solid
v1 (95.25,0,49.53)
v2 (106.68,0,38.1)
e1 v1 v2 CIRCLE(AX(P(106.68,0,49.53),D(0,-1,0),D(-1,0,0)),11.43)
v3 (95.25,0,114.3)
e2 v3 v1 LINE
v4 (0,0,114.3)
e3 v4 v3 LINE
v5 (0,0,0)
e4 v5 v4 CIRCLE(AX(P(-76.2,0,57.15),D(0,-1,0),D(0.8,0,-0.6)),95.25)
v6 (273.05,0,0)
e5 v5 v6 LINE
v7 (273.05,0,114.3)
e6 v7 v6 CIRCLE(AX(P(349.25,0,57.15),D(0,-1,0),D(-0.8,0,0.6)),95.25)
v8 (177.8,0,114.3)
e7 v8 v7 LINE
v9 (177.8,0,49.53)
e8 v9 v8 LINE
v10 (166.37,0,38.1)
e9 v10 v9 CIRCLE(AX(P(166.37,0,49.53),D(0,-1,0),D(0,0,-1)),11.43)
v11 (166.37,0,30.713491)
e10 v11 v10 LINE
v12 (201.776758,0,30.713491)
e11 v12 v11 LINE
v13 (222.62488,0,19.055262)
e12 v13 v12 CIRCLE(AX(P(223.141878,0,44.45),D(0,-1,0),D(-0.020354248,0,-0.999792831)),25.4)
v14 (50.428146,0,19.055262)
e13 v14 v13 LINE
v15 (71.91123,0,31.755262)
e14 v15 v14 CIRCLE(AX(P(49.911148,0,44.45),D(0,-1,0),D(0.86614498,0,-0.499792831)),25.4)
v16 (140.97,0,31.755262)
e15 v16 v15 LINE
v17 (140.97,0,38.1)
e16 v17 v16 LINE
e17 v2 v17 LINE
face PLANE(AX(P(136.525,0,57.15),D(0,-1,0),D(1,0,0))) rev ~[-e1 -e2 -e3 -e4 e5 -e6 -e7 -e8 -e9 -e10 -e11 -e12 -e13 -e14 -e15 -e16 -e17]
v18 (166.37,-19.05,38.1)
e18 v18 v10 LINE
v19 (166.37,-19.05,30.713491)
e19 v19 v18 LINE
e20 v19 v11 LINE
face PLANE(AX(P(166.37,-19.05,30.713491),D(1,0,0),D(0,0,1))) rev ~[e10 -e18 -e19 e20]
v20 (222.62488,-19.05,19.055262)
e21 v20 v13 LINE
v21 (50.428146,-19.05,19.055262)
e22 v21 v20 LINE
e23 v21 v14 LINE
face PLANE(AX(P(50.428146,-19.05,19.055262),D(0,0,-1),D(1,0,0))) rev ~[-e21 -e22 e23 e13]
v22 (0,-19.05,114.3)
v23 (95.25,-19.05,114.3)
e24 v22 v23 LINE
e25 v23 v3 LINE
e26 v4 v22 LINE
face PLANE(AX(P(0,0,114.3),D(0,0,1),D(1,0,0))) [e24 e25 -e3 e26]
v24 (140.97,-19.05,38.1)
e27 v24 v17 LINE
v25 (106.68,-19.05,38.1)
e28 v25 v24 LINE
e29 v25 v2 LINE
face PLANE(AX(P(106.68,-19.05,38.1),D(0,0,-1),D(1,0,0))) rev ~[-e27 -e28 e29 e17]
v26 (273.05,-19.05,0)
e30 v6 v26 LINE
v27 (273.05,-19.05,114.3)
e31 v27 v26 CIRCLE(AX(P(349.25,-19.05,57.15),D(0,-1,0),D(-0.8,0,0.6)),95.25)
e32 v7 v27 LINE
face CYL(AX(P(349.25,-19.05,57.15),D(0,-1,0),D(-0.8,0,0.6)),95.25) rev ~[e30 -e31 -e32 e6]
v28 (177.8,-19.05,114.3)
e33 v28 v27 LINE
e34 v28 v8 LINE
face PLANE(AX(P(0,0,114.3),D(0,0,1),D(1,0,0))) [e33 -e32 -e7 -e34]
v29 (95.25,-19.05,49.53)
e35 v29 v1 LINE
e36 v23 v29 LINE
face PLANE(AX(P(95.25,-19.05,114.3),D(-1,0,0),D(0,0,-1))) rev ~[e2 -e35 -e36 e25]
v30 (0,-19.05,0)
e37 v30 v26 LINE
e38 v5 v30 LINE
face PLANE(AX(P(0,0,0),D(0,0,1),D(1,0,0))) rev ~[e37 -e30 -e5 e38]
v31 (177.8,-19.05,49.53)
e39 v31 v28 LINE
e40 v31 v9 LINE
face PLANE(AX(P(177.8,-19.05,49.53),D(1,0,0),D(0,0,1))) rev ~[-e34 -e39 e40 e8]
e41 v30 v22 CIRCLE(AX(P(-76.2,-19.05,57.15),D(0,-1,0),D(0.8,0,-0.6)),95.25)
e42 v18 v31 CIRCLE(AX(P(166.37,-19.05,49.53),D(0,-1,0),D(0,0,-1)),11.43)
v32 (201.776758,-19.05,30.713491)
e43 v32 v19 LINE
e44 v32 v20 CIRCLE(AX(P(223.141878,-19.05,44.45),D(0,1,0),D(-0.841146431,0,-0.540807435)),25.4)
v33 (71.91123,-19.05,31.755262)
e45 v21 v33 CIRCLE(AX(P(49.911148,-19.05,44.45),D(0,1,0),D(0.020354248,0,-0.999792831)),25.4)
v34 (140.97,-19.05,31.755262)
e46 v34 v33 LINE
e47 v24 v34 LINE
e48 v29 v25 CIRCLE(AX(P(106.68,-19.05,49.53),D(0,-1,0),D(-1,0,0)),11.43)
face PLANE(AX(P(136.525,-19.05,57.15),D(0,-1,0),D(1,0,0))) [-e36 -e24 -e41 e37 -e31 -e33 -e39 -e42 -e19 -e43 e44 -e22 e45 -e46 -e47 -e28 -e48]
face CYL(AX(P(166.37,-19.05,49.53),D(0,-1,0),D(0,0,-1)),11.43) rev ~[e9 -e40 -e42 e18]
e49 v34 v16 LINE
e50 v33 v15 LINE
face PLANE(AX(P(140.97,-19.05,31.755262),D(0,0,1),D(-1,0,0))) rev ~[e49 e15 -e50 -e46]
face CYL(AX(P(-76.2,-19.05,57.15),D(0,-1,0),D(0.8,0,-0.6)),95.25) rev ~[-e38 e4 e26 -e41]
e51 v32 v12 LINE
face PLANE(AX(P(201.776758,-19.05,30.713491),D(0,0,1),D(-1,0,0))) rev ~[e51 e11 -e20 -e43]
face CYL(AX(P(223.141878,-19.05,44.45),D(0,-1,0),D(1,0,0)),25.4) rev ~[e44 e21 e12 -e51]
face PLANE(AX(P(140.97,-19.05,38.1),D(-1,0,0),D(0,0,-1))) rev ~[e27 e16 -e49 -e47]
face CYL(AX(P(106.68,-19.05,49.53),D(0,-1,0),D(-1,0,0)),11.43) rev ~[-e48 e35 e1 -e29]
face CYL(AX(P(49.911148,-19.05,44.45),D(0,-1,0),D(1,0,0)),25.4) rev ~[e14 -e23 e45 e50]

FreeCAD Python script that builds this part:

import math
import FreeCAD as App
import Part
import Sketcher

V = App.Vector
Q = App.Units.Quantity


def add_polygon(sketch, points):
    """Adds a closed chain of lines whose ends are joined by coincident constraints."""
    first, n = sketch.GeometryCount, len(points)
    for a, b in zip(points, points[1:] + points[:1]):
        sketch.addGeometry(Part.LineSegment(App.Vector(*a, 0), App.Vector(*b, 0)), False)
    for i in range(n):
        sketch.addConstraint(Sketcher.Constraint("Coincident", first + i, 2, first + (i + 1) % n, 1))

doc = App.newDocument("Part")
body = doc.addObject("PartDesign::Body", "Body")

sketch1 = body.newObject("Sketcher::SketchObject", "Sketch")
sketch1.AttachmentSupport = (doc.getObject("XZ_Plane"), [""])
sketch1.MapMode = "FlatFace"
add_polygon(sketch1, [(0, 114), (0, 0), (273, 0), (273, 114)])
sketch1.addConstraint(Sketcher.Constraint("Vertical", 0))
sketch1.addConstraint(Sketcher.Constraint("Horizontal", 1))
sketch1.addConstraint(Sketcher.Constraint("Vertical", 2))
sketch1.addConstraint(Sketcher.Constraint("Horizontal", 3))
sketch1.addConstraint(Sketcher.Constraint("Coincident", 0, 2, -1, 1))
sketch1.addConstraint(Sketcher.Constraint("DistanceY", 0, 2, 0, 1, Q("4.5 in")))
sketch1.addConstraint(Sketcher.Constraint("DistanceX", 1, 1, 1, 2, Q("10.75 in")))
pad1 = body.newObject("PartDesign::Pad", "Pad")
pad1.Profile = sketch1
pad1.Length = Q("0.75 in")

sketch2 = body.newObject("Sketcher::SketchObject", "Sketch001")
sketch2.AttachmentSupport = (doc.getObject("XZ_Plane"), [""])
sketch2.MapMode = "FlatFace"
sketch2.AttachmentOffset = App.Placement(V(0, 0, 0.75 * 25.4), App.Rotation())
sketch2.addGeometry(Part.LineSegment(V(0, 114, 0), V(0, 0, 0)), False)
sketch2.addGeometry(Part.ArcOfCircle(Part.Circle(V(-76, 57, 0), V(0, 0, 1), 95), math.radians(-37), math.radians(37)), False)
sketch2.addGeometry(Part.ArcOfCircle(Part.Circle(V(349, 57, 0), V(0, 0, 1), 95), math.radians(143), math.radians(217)), False)
sketch2.addGeometry(Part.LineSegment(V(273, 0, 0), V(273, 114, 0)), False)
sketch2.addConstraint(Sketcher.Constraint("Coincident", 0, 1, 1, 2))
sketch2.addConstraint(Sketcher.Constraint("Coincident", 1, 1, 0, 2))
sketch2.addConstraint(Sketcher.Constraint("Coincident", 2, 1, 3, 2))
sketch2.addConstraint(Sketcher.Constraint("Coincident", 3, 1, 2, 2))
sketch2.addConstraint(Sketcher.Constraint("Vertical", 0))
sketch2.addConstraint(Sketcher.Constraint("Vertical", 3))
sketch2.addConstraint(Sketcher.Constraint("Coincident", 1, 1, -1, 1))
sketch2.addConstraint(Sketcher.Constraint("Equal", 1, 2))
sketch2.addConstraint(Sketcher.Constraint("PointOnObject", 3, 1, -1))
sketch2.addConstraint(Sketcher.Constraint("Horizontal", 1, 3, 2, 3))
sketch2.addConstraint(Sketcher.Constraint("Radius", 1, Q("3.75 in")))
sketch2.addConstraint(Sketcher.Constraint("DistanceY", 0, 2, 0, 1, Q("4.5 in")))
sketch2.addConstraint(Sketcher.Constraint("DistanceX", -1, 1, 2, 3, Q("13.75 in")))
pocket1 = body.newObject("PartDesign::Pocket", "Pocket")
pocket1.Profile = sketch2
pocket1.Length = Q("1 in")

sketch3 = body.newObject("Sketcher::SketchObject", "Sketch002")
sketch3.AttachmentSupport = (doc.getObject("XZ_Plane"), [""])
sketch3.MapMode = "FlatFace"
sketch3.AttachmentOffset = App.Placement(V(0, 0, 0.75 * 25.4), App.Rotation())
sketch3.addGeometry(Part.LineSegment(V(178, 114, 0), V(95, 114, 0)), False)
sketch3.addGeometry(Part.LineSegment(V(95, 114, 0), V(95, 50, 0)), False)
sketch3.addGeometry(Part.ArcOfCircle(Part.Circle(V(107, 50, 0), V(0, 0, 1), 11), math.radians(180), math.radians(270)), False)
sketch3.addGeometry(Part.LineSegment(V(107, 38, 0), V(166, 38, 0)), False)
sketch3.addGeometry(Part.ArcOfCircle(Part.Circle(V(166, 50, 0), V(0, 0, 1), 11), math.radians(-90), math.radians(0)), False)
sketch3.addGeometry(Part.LineSegment(V(178, 50, 0), V(178, 114, 0)), False)
sketch3.addGeometry(Part.Circle(V(50, 44, 0), V(0, 0, 1), 25), False)
sketch3.addGeometry(Part.Circle(V(223, 44, 0), V(0, 0, 1), 25), False)
sketch3.addConstraint(Sketcher.Constraint("Coincident", 0, 2, 1, 1))
sketch3.addConstraint(Sketcher.Constraint("Tangent", 1, 2, 2, 1))
sketch3.addConstraint(Sketcher.Constraint("Tangent", 2, 2, 3, 1))
sketch3.addConstraint(Sketcher.Constraint("Tangent", 3, 2, 4, 1))
sketch3.addConstraint(Sketcher.Constraint("Tangent", 4, 2, 5, 1))
sketch3.addConstraint(Sketcher.Constraint("Coincident", 5, 2, 0, 1))
sketch3.addConstraint(Sketcher.Constraint("Horizontal", 0))
sketch3.addConstraint(Sketcher.Constraint("Vertical", 1))
sketch3.addConstraint(Sketcher.Constraint("Horizontal", 3))
sketch3.addConstraint(Sketcher.Constraint("Vertical", 5))
sketch3.addConstraint(Sketcher.Constraint("Equal", 2, 4))
sketch3.addConstraint(Sketcher.Constraint("Equal", 6, 7))
sketch3.addConstraint(Sketcher.Constraint("Horizontal", 6, 3, 7, 3))
sketch3.addConstraint(Sketcher.Constraint("Diameter", 6, Q("2 in")))
sketch3.addConstraint(Sketcher.Constraint("Radius", 2, Q("0.45 in")))
sketch3.addConstraint(Sketcher.Constraint("DistanceX", -1, 1, 4, 2, Q("7 in")))
sketch3.addConstraint(Sketcher.Constraint("DistanceY", 2, 2, 0, 2, Q("3 in")))
sketch3.addConstraint(Sketcher.Constraint("DistanceX", 0, 2, 0, 1, Q("3.25 in")))
sketch3.addConstraint(Sketcher.Constraint("DistanceY", -1, 1, 0, 2, Q("4.5 in")))
sketch3.addConstraint(Sketcher.Constraint("DistanceY", 6, 3, 2, 3, Q("0.2 in")))
sketch3.addConstraint(Sketcher.Constraint("DistanceX", 6, 3, 7, 3, Q("173.23073 mm")))
sketch3.addConstraint(Sketcher.Constraint("DistanceX", -1, 1, 6, 3, Q("49.911148 mm")))
pocket2 = body.newObject("PartDesign::Pocket", "Pocket001")
pocket2.Profile = sketch3
pocket2.Length = Q("1 in")

sketch4 = body.newObject("Sketcher::SketchObject", "Sketch003")
sketch4.AttachmentSupport = (doc.getObject("XZ_Plane"), [""])
sketch4.MapMode = "FlatFace"
sketch4.AttachmentOffset = App.Placement(V(0, 0, 0.75 * 25.4), App.Rotation())
sketch4.addGeometry(Part.LineSegment(V(166, 31, 0), V(166, 38, 0)), False)
sketch4.addGeometry(Part.LineSegment(V(166, 38, 0), V(141, 38, 0)), False)
sketch4.addGeometry(Part.LineSegment(V(141, 38, 0), V(141, 32, 0)), False)
sketch4.addGeometry(Part.LineSegment(V(141, 32, 0), V(72, 32, 0)), False)
sketch4.addGeometry(Part.ArcOfCircle(Part.Circle(V(50, 44, 0), V(0, 0, 1), 25), math.radians(-89), math.radians(-30)), False)
sketch4.addGeometry(Part.LineSegment(V(50, 19, 0), V(223, 19, 0)), False)
sketch4.addGeometry(Part.ArcOfCircle(Part.Circle(V(223, 44, 0), V(0, 0, 1), 25), math.radians(-147), math.radians(-91)), False)
sketch4.addGeometry(Part.LineSegment(V(202, 31, 0), V(166, 31, 0)), False)
sketch4.addConstraint(Sketcher.Constraint("Coincident", 0, 2, 1, 1))
sketch4.addConstraint(Sketcher.Constraint("Coincident", 1, 2, 2, 1))
sketch4.addConstraint(Sketcher.Constraint("Coincident", 2, 2, 3, 1))
sketch4.addConstraint(Sketcher.Constraint("Coincident", 3, 2, 4, 2))
sketch4.addConstraint(Sketcher.Constraint("Coincident", 4, 1, 5, 1))
sketch4.addConstraint(Sketcher.Constraint("Coincident", 5, 2, 6, 2))
sketch4.addConstraint(Sketcher.Constraint("Coincident", 6, 1, 7, 1))
sketch4.addConstraint(Sketcher.Constraint("Coincident", 7, 2, 0, 1))
sketch4.addConstraint(Sketcher.Constraint("Vertical", 0))
sketch4.addConstraint(Sketcher.Constraint("Horizontal", 1))
sketch4.addConstraint(Sketcher.Constraint("Vertical", 2))
sketch4.addConstraint(Sketcher.Constraint("Horizontal", 3))
sketch4.addConstraint(Sketcher.Constraint("Horizontal", 5))
sketch4.addConstraint(Sketcher.Constraint("Horizontal", 7))
sketch4.addConstraint(Sketcher.Constraint("Equal", 4, 6))
sketch4.addConstraint(Sketcher.Constraint("Horizontal", 4, 3, 6, 3))
sketch4.addConstraint(Sketcher.Constraint("Radius", 4, Q("1 in")))
sketch4.addConstraint(Sketcher.Constraint("DistanceX", 1, 2, 1, 1, Q("1 in")))
sketch4.addConstraint(Sketcher.Constraint("DistanceY", -1, 1, 0, 2, Q("1.5 in")))
sketch4.addConstraint(Sketcher.Constraint("DistanceY", 4, 1, 3, 2, Q("0.5 in")))
sketch4.addConstraint(Sketcher.Constraint("DistanceY", -1, 1, 4, 3, Q("1.75 in")))
sketch4.addConstraint(Sketcher.Constraint("DistanceX", -1, 1, 0, 2, Q("6.55 in")))
sketch4.addConstraint(Sketcher.Constraint("DistanceX", 3, 2, 3, 1, Q("69.05877 mm")))
sketch4.addConstraint(Sketcher.Constraint("DistanceX", 7, 2, 7, 1, Q("35.406758 mm")))
sketch4.addConstraint(Sketcher.Constraint("DistanceY", 0, 1, 0, 2, Q("7.386509 mm")))
sketch4.addConstraint(Sketcher.Constraint("DistanceX", 5, 1, 5, 2, Q("172.196734 mm")))
pocket3 = body.newObject("PartDesign::Pocket", "Pocket002")
pocket3.Profile = sketch4
pocket3.Length = Q("1 in")

doc.recompute()
